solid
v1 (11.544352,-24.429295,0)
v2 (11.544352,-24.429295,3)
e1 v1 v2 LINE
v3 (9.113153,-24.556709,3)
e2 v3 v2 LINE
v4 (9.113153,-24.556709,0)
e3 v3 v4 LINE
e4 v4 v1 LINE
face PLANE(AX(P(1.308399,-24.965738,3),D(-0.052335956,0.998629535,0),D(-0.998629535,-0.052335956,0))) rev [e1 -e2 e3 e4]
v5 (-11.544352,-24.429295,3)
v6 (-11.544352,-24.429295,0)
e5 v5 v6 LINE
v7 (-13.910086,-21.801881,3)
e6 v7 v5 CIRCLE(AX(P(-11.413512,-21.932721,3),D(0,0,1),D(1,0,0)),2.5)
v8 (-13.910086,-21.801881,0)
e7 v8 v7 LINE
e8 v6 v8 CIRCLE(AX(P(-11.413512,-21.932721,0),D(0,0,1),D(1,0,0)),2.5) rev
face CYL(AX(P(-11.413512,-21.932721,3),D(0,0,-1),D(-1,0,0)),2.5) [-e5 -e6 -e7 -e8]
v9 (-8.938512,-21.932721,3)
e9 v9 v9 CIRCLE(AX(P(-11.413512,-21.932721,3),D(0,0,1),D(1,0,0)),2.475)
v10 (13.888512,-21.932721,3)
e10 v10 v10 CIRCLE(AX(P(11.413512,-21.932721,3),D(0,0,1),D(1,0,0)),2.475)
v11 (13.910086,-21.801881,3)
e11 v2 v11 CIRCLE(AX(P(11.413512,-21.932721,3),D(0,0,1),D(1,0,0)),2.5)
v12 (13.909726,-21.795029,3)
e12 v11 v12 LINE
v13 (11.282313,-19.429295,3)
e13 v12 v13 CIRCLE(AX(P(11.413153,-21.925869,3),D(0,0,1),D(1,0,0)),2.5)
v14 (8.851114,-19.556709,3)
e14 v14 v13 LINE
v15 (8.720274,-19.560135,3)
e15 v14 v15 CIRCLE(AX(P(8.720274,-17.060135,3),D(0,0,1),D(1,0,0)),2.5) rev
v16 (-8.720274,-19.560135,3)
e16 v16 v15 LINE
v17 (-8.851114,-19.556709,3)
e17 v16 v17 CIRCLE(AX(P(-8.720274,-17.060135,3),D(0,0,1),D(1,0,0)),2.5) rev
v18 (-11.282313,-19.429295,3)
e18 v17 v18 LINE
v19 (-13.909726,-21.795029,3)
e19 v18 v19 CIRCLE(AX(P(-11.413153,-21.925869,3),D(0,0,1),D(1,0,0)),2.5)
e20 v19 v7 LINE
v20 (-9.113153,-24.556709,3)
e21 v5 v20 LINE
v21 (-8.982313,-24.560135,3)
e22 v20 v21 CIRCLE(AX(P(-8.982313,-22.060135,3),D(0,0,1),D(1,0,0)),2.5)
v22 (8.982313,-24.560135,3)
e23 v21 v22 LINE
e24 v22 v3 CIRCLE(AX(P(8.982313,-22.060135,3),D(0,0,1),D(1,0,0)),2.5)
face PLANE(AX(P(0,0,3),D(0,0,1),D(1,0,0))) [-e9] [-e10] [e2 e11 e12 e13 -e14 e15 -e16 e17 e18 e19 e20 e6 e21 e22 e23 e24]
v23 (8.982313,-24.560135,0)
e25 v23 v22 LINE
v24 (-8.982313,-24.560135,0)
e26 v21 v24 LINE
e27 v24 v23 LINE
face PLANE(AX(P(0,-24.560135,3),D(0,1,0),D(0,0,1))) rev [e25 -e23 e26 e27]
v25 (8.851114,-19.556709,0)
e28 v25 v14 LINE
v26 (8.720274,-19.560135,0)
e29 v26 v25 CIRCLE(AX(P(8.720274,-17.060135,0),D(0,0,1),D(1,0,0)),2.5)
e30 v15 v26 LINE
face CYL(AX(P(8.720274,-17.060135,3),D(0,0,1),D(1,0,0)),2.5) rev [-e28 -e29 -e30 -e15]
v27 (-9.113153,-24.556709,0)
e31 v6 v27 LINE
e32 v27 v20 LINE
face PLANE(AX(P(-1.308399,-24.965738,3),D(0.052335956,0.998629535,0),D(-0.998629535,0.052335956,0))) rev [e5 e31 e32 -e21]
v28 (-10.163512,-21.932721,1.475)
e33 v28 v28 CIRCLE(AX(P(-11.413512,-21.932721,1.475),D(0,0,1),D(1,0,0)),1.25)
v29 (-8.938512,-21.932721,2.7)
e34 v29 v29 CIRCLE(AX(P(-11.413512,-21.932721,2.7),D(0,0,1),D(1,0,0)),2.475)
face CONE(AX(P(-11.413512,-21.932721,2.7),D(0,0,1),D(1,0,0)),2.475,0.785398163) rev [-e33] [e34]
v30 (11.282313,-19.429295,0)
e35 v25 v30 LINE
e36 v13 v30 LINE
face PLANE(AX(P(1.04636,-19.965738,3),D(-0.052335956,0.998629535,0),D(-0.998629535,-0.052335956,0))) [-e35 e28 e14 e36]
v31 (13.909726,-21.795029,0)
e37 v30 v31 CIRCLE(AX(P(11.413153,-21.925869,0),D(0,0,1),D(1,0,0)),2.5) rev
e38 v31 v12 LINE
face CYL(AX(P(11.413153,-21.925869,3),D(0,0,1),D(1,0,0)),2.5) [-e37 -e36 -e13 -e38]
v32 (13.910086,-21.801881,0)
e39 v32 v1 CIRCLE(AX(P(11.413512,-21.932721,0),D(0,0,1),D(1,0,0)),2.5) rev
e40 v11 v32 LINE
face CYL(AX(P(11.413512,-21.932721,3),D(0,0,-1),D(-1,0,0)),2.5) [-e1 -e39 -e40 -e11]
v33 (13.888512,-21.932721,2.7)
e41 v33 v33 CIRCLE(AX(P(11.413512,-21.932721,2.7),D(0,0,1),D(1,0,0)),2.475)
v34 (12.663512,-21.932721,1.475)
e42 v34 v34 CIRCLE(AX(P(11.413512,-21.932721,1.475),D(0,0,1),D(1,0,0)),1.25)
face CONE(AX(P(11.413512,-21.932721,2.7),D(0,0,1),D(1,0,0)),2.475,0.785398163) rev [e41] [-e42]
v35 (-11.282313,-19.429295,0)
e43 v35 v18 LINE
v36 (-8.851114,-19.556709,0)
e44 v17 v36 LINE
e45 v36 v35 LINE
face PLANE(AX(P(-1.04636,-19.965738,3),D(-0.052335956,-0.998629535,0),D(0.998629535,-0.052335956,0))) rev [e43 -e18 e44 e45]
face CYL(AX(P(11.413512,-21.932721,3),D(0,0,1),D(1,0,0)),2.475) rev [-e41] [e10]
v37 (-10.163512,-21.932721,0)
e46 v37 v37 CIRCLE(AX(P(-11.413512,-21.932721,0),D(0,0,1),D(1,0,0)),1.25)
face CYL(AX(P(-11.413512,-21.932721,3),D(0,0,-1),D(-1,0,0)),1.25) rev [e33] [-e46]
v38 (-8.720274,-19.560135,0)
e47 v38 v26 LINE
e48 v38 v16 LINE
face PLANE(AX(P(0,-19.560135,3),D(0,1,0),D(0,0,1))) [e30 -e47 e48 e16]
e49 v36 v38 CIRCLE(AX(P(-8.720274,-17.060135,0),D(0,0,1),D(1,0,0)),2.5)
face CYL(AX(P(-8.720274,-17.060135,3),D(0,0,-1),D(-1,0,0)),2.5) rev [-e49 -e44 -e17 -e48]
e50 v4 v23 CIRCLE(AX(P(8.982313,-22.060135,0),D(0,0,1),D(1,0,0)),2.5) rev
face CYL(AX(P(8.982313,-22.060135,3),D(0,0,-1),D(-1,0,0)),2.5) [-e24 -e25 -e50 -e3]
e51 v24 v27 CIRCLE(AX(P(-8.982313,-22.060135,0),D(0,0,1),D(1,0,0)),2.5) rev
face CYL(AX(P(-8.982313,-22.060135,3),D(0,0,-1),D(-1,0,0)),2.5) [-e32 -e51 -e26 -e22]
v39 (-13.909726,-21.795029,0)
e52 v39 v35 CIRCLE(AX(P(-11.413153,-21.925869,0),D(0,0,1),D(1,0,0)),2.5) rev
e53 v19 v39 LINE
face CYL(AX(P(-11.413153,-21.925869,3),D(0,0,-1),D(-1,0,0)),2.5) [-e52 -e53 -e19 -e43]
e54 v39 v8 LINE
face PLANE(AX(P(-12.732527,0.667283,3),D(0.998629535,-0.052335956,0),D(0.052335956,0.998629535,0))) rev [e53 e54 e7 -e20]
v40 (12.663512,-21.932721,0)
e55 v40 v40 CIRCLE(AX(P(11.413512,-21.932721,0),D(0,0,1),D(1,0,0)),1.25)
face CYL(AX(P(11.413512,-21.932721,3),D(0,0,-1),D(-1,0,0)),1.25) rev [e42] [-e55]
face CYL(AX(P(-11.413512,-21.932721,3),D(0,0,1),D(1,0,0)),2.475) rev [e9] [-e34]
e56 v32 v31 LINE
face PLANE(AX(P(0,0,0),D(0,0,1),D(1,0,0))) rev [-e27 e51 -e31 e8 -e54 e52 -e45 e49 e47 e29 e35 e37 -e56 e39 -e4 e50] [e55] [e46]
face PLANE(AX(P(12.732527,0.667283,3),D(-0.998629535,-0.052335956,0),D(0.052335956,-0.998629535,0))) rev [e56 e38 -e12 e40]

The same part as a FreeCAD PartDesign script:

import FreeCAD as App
import Part
import Sketcher
from FreeCAD import Vector
Q = App.Units.Quantity


def edges_at(feature, points):
    """Names of the edges that pass closest to the given points."""
    edges = feature.Shape.Edges
    near = lambda p: min(range(len(edges)), key=lambda i: edges[i].distToShape(Part.Vertex(*p))[0])
    return sorted({f"Edge{near(p) + 1}" for p in points})

doc = App.newDocument("Part")
params = doc.addObject("Spreadsheet::Sheet", "Params")
for row, (alias, value) in enumerate([
    ("sketch1_diameter", "2.5 mm"),
    ("sketch1_length", "5 mm"),
    ("pad1_length", "3 mm"),
    ("fillet_radius", "2.5 mm"),
    ("sketch2_height", "0.3 mm"),
    ("groove_angle", "360 deg"),
    ("linearpattern_pitch", "22.827023 mm"),
], start=1):
    params.set(f"A{row}", alias)
    params.set(f"B{row}", "=" + value)
    params.setAlias(f"B{row}", alias)

body = doc.addObject("PartDesign::Body", "Body")

# Sketch on XY plane
sketch1 = body.newObject("Sketcher::SketchObject", "Sketch")
sketch1.AttachmentSupport = (doc.getObject("XY_Plane"), [""])
sketch1.MapMode = "FlatFace"
sketch1.addGeometry([
    Part.LineSegment(Vector(-14, -24.3, 0), Vector(-9, -24.6, 0)),  # 0
    Part.LineSegment(Vector(-9, -24.6, 0), Vector(9, -24.6, 0)),  # 1
    Part.LineSegment(Vector(9, -24.6, 0), Vector(14, -24.3, 0)),  # 2
    Part.LineSegment(Vector(14, -24.3, 0), Vector(13.8, -19.3, 0)),  # 3
    Part.LineSegment(Vector(13.8, -19.3, 0), Vector(8.8, -19.6, 0)),  # 4
    Part.LineSegment(Vector(8.8, -19.6, 0), Vector(-8.8, -19.6, 0)),  # 5
    Part.LineSegment(Vector(-8.8, -19.6, 0), Vector(-13.8, -19.3, 0)),  # 6
    Part.LineSegment(Vector(-13.8, -19.3, 0), Vector(-14, -24.3, 0)),  # 7
    Part.Circle(Vector(-11.4, -21.9, 0), Vector(0, 0, 1), 1.2),  # 8
    Part.Circle(Vector(11.4, -21.9, 0), Vector(0, 0, 1), 1.2),  # 9
], False)
sketch1.addConstraint([
    Sketcher.Constraint("Coincident", 0, 2, 1, 1),
    Sketcher.Constraint("Coincident", 1, 2, 2, 1),
    Sketcher.Constraint("Coincident", 2, 2, 3, 1),
    Sketcher.Constraint("Coincident", 3, 2, 4, 1),
    Sketcher.Constraint("Coincident", 4, 2, 5, 1),
    Sketcher.Constraint("Coincident", 5, 2, 6, 1),
    Sketcher.Constraint("Coincident", 6, 2, 7, 1),
    Sketcher.Constraint("Coincident", 7, 2, 0, 1),
    Sketcher.Constraint("Horizontal", 1),
    Sketcher.Constraint("Horizontal", 5),
    Sketcher.Constraint("Equal", 8, 9),
    Sketcher.Constraint("Symmetric", 8, 3, 9, 3, -2),
    Sketcher.Constraint("Symmetric", 3, 2, 6, 2, -2),
    Sketcher.Constraint("Symmetric", 2, 2, 7, 2, -2),
    Sketcher.Constraint("Perpendicular", 2, 3),
    Sketcher.Constraint("Perpendicular", 3, 4),
    Sketcher.Constraint("Parallel", 0, 6),
    Sketcher.Constraint("Perpendicular", 6, 7),
    Sketcher.Constraint("Equal", 2, 4),
    Sketcher.Constraint("Diameter", 8, Q("2.5 mm")),
    Sketcher.Constraint("Angle", 0, Q("-3 deg")),
    Sketcher.Constraint("Distance", 0, Q("5 mm")),
    Sketcher.Constraint("DistanceY", 2, 2, 3, 2, Q("5 mm")),
    Sketcher.Constraint("DistanceX", 8, 3, 3, 2, Q("25.192398 mm")),
    Sketcher.Constraint("DistanceX", 1, 1, 1, 2, Q("18.095556 mm")),
    Sketcher.Constraint("DistanceY", 8, 3, -1, 1, Q("21.932721 mm")),
    Sketcher.Constraint("DistanceY", 0, 2, -1, 1, Q("24.560135 mm")),
])
sketch1.setExpression("Constraints[19]", "Params.sketch1_diameter")
sketch1.setExpression("Constraints[21]", "Params.sketch1_length")
pad1 = body.newObject("PartDesign::Pad", "Pad")
pad1.Profile = sketch1
pad1.setExpression("Length", "Params.pad1_length")
doc.recompute()

fillet = body.newObject("PartDesign::Fillet", "Fillet")
fillet.Base = (pad1, edges_at(pad1, [
    (-9.048, -24.56, 1.5),
    (-14.041, -24.298, 1.5),
    (-13.779, -19.298, 1.5),
    (-8.786, -19.56, 1.5),
    (8.786, -19.56, 1.5),
    (13.779, -19.298, 1.5),
    (14.041, -24.298, 1.5),
    (9.048, -24.56, 1.5),
]))
fillet.setExpression("Radius", "Params.fillet_radius")

# Sketch on YZ plane
sketch2 = body.newObject("Sketcher::SketchObject", "Sketch001")
sketch2.AttachmentSupport = (doc.getObject("YZ_Plane"), [""])
sketch2.MapMode = "FlatFace"
sketch2.AttachmentOffset = App.Placement(Vector(0, 0, -11.413512), App.Rotation())
sketch2.addGeometry([
    Part.LineSegment(Vector(-21.93, -2.75, 0), Vector(-21.93, 3, 0)),  # 0
    Part.LineSegment(Vector(-21.93, 3, 0), Vector(-24.41, 3, 0)),  # 1
    Part.LineSegment(Vector(-24.41, 3, 0), Vector(-24.41, 2.7, 0)),  # 2
    Part.LineSegment(Vector(-24.41, 2.7, 0), Vector(-23.18, 1.48, 0)),  # 3
    Part.LineSegment(Vector(-23.18, 1.48, 0), Vector(-23.18, -2, 0)),  # 4
    Part.LineSegment(Vector(-23.18, -2, 0), Vector(-21.93, -2.75, 0)),  # 5
], False)
sketch2.addGeometry(Part.LineSegment(Vector(-21.93, 3, 0), Vector(-21.93, -2.75, 0)), True)  # axis
sketch2.addConstraint([
    Sketcher.Constraint("Coincident", 0, 2, 1, 1),
    Sketcher.Constraint("Coincident", 1, 2, 2, 1),
    Sketcher.Constraint("Coincident", 2, 2, 3, 1),
    Sketcher.Constraint("Coincident", 3, 2, 4, 1),
    Sketcher.Constraint("Coincident", 4, 2, 5, 1),
    Sketcher.Constraint("Coincident", 5, 2, 0, 1),
    Sketcher.Constraint("Vertical", 0),
    Sketcher.Constraint("Horizontal", 1),
    Sketcher.Constraint("Vertical", 2),
    Sketcher.Constraint("Vertical", 4),
    Sketcher.Constraint("Vertical", 6),
    Sketcher.Constraint("Coincident", 6, 1, 0, 2),
    Sketcher.Constraint("Equal", 0, 6),
    Sketcher.Constraint("Angle", 3, Q("-45 deg")),
    Sketcher.Constraint("Angle", 5, Q("-31 deg")),
    Sketcher.Constraint("DistanceY", 2, 2, 2, 1, Q("0.3 mm")),
    Sketcher.Constraint("DistanceY", -1, 1, 0, 2, Q("3 mm")),
    Sketcher.Constraint("DistanceY", 4, 2, -1, 1, Q("2 mm")),
    Sketcher.Constraint("DistanceX", 1, 2, 1, 1, Q("2.475 mm")),
    Sketcher.Constraint("DistanceY", 4, 2, 4, 1, Q("3.475 mm")),
    Sketcher.Constraint("DistanceX", 0, 2, -1, 1, Q("21.932721 mm")),
])
sketch2.setExpression("Constraints[15]", "Params.sketch2_height")
groove = body.newObject("PartDesign::Groove", "Groove")
groove.Profile = sketch2
groove.ReferenceAxis = (sketch2, ["Axis0"])
groove.setExpression("Angle", "Params.groove_angle")
doc.recompute()

linearpattern = body.newObject("PartDesign::LinearPattern", "LinearPattern")
linearpattern.Originals = [groove]
linearpattern.Direction = (doc.getObject("X_Axis"), [""])
linearpattern.Mode = "offset"
linearpattern.setExpression("Offset", "Params.linearpattern_pitch")
linearpattern.Occurrences = 2
body.Tip = linearpattern

doc.recompute()
